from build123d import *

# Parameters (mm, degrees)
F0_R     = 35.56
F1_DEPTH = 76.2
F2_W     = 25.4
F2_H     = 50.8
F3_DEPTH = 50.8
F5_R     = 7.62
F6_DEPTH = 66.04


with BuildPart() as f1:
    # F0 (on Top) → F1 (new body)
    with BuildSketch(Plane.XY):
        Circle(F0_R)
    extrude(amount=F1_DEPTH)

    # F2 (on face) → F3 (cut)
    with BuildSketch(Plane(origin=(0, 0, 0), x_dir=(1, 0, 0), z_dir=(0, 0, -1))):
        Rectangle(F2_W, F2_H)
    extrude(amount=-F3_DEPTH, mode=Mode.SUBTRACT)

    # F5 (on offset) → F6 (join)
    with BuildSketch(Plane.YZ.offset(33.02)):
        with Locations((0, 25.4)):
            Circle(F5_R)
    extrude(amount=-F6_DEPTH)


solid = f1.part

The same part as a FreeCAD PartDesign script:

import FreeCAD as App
import Part
import Sketcher
Q = App.Units.Quantity


def add_polygon(sketch, points):
    """Adds a closed chain of lines whose ends are joined by coincident constraints."""
    first, n = sketch.GeometryCount, len(points)
    for a, b in zip(points, points[1:] + points[:1]):
        sketch.addGeometry(Part.LineSegment(App.Vector(*a, 0), App.Vector(*b, 0)), False)
    for i in range(n):
        sketch.addConstraint(Sketcher.Constraint("Coincident", first + i, 2, first + (i + 1) % n, 1))

doc = App.newDocument("Part")
body = doc.addObject("PartDesign::Body", "Body")

# Sketch on XY plane
sketch1 = body.newObject("Sketcher::SketchObject", "Sketch")
sketch1.AttachmentSupport = (doc.getObject("XY_Plane"), [""])
sketch1.MapMode = "FlatFace"
sketch1.addGeometry(Part.Circle(App.Vector(0, 0, 0), App.Vector(0, 0, 1), 36), False)
sketch1.addConstraint([
    Sketcher.Constraint("Coincident", 0, 3, -1, 1),
    Sketcher.Constraint("Diameter", 0, Q("2.8 in")),
])
pad1 = body.newObject("PartDesign::Pad", "Pad")
pad1.Profile = sketch1
pad1.Length = Q("3 in")

# Sketch on XY plane
sketch2 = body.newObject("Sketcher::SketchObject", "Sketch001")
sketch2.AttachmentSupport = (doc.getObject("XY_Plane"), [""])
sketch2.MapMode = "FlatFace"
add_polygon(sketch2, [(-13, -25), (-13, 25), (13, 25), (13, -25)])  # lines 0-3
sketch2.addConstraint([
    Sketcher.Constraint("Vertical", 0),
    Sketcher.Constraint("Horizontal", 1),
    Sketcher.Constraint("Vertical", 2),
    Sketcher.Constraint("Horizontal", 3),
    Sketcher.Constraint("Symmetric", 0, 2, 2, 2, -1, 1),
    Sketcher.Constraint("DistanceX", 1, 1, 1, 2, Q("1 in")),
    Sketcher.Constraint("DistanceY", 0, 1, 0, 2, Q("2 in")),
])
pocket1 = body.newObject("PartDesign::Pocket", "Pocket")
pocket1.Profile = sketch2
pocket1.Length = Q("2 in")
pocket1.Reversed = True

# Sketch on YZ plane
sketch3 = body.newObject("Sketcher::SketchObject", "Sketch002")
sketch3.AttachmentSupport = (doc.getObject("YZ_Plane"), [""])
sketch3.MapMode = "FlatFace"
sketch3.AttachmentOffset = App.Placement(App.Vector(0, 0, 1.3 * 25.4), App.Rotation())
sketch3.addGeometry(Part.Circle(App.Vector(0, 25, 0), App.Vector(0, 0, 1), 8), False)
sketch3.addConstraint([
    Sketcher.Constraint("PointOnObject", 0, 3, -2),
    Sketcher.Constraint("Diameter", 0, Q("0.6 in")),
    Sketcher.Constraint("DistanceY", -1, 1, 0, 3, Q("1 in")),
])
pad2 = body.newObject("PartDesign::Pad", "Pad001")
pad2.Profile = sketch3
pad2.Length = Q("2.6 in")
pad2.Reversed = True

doc.recompute()
